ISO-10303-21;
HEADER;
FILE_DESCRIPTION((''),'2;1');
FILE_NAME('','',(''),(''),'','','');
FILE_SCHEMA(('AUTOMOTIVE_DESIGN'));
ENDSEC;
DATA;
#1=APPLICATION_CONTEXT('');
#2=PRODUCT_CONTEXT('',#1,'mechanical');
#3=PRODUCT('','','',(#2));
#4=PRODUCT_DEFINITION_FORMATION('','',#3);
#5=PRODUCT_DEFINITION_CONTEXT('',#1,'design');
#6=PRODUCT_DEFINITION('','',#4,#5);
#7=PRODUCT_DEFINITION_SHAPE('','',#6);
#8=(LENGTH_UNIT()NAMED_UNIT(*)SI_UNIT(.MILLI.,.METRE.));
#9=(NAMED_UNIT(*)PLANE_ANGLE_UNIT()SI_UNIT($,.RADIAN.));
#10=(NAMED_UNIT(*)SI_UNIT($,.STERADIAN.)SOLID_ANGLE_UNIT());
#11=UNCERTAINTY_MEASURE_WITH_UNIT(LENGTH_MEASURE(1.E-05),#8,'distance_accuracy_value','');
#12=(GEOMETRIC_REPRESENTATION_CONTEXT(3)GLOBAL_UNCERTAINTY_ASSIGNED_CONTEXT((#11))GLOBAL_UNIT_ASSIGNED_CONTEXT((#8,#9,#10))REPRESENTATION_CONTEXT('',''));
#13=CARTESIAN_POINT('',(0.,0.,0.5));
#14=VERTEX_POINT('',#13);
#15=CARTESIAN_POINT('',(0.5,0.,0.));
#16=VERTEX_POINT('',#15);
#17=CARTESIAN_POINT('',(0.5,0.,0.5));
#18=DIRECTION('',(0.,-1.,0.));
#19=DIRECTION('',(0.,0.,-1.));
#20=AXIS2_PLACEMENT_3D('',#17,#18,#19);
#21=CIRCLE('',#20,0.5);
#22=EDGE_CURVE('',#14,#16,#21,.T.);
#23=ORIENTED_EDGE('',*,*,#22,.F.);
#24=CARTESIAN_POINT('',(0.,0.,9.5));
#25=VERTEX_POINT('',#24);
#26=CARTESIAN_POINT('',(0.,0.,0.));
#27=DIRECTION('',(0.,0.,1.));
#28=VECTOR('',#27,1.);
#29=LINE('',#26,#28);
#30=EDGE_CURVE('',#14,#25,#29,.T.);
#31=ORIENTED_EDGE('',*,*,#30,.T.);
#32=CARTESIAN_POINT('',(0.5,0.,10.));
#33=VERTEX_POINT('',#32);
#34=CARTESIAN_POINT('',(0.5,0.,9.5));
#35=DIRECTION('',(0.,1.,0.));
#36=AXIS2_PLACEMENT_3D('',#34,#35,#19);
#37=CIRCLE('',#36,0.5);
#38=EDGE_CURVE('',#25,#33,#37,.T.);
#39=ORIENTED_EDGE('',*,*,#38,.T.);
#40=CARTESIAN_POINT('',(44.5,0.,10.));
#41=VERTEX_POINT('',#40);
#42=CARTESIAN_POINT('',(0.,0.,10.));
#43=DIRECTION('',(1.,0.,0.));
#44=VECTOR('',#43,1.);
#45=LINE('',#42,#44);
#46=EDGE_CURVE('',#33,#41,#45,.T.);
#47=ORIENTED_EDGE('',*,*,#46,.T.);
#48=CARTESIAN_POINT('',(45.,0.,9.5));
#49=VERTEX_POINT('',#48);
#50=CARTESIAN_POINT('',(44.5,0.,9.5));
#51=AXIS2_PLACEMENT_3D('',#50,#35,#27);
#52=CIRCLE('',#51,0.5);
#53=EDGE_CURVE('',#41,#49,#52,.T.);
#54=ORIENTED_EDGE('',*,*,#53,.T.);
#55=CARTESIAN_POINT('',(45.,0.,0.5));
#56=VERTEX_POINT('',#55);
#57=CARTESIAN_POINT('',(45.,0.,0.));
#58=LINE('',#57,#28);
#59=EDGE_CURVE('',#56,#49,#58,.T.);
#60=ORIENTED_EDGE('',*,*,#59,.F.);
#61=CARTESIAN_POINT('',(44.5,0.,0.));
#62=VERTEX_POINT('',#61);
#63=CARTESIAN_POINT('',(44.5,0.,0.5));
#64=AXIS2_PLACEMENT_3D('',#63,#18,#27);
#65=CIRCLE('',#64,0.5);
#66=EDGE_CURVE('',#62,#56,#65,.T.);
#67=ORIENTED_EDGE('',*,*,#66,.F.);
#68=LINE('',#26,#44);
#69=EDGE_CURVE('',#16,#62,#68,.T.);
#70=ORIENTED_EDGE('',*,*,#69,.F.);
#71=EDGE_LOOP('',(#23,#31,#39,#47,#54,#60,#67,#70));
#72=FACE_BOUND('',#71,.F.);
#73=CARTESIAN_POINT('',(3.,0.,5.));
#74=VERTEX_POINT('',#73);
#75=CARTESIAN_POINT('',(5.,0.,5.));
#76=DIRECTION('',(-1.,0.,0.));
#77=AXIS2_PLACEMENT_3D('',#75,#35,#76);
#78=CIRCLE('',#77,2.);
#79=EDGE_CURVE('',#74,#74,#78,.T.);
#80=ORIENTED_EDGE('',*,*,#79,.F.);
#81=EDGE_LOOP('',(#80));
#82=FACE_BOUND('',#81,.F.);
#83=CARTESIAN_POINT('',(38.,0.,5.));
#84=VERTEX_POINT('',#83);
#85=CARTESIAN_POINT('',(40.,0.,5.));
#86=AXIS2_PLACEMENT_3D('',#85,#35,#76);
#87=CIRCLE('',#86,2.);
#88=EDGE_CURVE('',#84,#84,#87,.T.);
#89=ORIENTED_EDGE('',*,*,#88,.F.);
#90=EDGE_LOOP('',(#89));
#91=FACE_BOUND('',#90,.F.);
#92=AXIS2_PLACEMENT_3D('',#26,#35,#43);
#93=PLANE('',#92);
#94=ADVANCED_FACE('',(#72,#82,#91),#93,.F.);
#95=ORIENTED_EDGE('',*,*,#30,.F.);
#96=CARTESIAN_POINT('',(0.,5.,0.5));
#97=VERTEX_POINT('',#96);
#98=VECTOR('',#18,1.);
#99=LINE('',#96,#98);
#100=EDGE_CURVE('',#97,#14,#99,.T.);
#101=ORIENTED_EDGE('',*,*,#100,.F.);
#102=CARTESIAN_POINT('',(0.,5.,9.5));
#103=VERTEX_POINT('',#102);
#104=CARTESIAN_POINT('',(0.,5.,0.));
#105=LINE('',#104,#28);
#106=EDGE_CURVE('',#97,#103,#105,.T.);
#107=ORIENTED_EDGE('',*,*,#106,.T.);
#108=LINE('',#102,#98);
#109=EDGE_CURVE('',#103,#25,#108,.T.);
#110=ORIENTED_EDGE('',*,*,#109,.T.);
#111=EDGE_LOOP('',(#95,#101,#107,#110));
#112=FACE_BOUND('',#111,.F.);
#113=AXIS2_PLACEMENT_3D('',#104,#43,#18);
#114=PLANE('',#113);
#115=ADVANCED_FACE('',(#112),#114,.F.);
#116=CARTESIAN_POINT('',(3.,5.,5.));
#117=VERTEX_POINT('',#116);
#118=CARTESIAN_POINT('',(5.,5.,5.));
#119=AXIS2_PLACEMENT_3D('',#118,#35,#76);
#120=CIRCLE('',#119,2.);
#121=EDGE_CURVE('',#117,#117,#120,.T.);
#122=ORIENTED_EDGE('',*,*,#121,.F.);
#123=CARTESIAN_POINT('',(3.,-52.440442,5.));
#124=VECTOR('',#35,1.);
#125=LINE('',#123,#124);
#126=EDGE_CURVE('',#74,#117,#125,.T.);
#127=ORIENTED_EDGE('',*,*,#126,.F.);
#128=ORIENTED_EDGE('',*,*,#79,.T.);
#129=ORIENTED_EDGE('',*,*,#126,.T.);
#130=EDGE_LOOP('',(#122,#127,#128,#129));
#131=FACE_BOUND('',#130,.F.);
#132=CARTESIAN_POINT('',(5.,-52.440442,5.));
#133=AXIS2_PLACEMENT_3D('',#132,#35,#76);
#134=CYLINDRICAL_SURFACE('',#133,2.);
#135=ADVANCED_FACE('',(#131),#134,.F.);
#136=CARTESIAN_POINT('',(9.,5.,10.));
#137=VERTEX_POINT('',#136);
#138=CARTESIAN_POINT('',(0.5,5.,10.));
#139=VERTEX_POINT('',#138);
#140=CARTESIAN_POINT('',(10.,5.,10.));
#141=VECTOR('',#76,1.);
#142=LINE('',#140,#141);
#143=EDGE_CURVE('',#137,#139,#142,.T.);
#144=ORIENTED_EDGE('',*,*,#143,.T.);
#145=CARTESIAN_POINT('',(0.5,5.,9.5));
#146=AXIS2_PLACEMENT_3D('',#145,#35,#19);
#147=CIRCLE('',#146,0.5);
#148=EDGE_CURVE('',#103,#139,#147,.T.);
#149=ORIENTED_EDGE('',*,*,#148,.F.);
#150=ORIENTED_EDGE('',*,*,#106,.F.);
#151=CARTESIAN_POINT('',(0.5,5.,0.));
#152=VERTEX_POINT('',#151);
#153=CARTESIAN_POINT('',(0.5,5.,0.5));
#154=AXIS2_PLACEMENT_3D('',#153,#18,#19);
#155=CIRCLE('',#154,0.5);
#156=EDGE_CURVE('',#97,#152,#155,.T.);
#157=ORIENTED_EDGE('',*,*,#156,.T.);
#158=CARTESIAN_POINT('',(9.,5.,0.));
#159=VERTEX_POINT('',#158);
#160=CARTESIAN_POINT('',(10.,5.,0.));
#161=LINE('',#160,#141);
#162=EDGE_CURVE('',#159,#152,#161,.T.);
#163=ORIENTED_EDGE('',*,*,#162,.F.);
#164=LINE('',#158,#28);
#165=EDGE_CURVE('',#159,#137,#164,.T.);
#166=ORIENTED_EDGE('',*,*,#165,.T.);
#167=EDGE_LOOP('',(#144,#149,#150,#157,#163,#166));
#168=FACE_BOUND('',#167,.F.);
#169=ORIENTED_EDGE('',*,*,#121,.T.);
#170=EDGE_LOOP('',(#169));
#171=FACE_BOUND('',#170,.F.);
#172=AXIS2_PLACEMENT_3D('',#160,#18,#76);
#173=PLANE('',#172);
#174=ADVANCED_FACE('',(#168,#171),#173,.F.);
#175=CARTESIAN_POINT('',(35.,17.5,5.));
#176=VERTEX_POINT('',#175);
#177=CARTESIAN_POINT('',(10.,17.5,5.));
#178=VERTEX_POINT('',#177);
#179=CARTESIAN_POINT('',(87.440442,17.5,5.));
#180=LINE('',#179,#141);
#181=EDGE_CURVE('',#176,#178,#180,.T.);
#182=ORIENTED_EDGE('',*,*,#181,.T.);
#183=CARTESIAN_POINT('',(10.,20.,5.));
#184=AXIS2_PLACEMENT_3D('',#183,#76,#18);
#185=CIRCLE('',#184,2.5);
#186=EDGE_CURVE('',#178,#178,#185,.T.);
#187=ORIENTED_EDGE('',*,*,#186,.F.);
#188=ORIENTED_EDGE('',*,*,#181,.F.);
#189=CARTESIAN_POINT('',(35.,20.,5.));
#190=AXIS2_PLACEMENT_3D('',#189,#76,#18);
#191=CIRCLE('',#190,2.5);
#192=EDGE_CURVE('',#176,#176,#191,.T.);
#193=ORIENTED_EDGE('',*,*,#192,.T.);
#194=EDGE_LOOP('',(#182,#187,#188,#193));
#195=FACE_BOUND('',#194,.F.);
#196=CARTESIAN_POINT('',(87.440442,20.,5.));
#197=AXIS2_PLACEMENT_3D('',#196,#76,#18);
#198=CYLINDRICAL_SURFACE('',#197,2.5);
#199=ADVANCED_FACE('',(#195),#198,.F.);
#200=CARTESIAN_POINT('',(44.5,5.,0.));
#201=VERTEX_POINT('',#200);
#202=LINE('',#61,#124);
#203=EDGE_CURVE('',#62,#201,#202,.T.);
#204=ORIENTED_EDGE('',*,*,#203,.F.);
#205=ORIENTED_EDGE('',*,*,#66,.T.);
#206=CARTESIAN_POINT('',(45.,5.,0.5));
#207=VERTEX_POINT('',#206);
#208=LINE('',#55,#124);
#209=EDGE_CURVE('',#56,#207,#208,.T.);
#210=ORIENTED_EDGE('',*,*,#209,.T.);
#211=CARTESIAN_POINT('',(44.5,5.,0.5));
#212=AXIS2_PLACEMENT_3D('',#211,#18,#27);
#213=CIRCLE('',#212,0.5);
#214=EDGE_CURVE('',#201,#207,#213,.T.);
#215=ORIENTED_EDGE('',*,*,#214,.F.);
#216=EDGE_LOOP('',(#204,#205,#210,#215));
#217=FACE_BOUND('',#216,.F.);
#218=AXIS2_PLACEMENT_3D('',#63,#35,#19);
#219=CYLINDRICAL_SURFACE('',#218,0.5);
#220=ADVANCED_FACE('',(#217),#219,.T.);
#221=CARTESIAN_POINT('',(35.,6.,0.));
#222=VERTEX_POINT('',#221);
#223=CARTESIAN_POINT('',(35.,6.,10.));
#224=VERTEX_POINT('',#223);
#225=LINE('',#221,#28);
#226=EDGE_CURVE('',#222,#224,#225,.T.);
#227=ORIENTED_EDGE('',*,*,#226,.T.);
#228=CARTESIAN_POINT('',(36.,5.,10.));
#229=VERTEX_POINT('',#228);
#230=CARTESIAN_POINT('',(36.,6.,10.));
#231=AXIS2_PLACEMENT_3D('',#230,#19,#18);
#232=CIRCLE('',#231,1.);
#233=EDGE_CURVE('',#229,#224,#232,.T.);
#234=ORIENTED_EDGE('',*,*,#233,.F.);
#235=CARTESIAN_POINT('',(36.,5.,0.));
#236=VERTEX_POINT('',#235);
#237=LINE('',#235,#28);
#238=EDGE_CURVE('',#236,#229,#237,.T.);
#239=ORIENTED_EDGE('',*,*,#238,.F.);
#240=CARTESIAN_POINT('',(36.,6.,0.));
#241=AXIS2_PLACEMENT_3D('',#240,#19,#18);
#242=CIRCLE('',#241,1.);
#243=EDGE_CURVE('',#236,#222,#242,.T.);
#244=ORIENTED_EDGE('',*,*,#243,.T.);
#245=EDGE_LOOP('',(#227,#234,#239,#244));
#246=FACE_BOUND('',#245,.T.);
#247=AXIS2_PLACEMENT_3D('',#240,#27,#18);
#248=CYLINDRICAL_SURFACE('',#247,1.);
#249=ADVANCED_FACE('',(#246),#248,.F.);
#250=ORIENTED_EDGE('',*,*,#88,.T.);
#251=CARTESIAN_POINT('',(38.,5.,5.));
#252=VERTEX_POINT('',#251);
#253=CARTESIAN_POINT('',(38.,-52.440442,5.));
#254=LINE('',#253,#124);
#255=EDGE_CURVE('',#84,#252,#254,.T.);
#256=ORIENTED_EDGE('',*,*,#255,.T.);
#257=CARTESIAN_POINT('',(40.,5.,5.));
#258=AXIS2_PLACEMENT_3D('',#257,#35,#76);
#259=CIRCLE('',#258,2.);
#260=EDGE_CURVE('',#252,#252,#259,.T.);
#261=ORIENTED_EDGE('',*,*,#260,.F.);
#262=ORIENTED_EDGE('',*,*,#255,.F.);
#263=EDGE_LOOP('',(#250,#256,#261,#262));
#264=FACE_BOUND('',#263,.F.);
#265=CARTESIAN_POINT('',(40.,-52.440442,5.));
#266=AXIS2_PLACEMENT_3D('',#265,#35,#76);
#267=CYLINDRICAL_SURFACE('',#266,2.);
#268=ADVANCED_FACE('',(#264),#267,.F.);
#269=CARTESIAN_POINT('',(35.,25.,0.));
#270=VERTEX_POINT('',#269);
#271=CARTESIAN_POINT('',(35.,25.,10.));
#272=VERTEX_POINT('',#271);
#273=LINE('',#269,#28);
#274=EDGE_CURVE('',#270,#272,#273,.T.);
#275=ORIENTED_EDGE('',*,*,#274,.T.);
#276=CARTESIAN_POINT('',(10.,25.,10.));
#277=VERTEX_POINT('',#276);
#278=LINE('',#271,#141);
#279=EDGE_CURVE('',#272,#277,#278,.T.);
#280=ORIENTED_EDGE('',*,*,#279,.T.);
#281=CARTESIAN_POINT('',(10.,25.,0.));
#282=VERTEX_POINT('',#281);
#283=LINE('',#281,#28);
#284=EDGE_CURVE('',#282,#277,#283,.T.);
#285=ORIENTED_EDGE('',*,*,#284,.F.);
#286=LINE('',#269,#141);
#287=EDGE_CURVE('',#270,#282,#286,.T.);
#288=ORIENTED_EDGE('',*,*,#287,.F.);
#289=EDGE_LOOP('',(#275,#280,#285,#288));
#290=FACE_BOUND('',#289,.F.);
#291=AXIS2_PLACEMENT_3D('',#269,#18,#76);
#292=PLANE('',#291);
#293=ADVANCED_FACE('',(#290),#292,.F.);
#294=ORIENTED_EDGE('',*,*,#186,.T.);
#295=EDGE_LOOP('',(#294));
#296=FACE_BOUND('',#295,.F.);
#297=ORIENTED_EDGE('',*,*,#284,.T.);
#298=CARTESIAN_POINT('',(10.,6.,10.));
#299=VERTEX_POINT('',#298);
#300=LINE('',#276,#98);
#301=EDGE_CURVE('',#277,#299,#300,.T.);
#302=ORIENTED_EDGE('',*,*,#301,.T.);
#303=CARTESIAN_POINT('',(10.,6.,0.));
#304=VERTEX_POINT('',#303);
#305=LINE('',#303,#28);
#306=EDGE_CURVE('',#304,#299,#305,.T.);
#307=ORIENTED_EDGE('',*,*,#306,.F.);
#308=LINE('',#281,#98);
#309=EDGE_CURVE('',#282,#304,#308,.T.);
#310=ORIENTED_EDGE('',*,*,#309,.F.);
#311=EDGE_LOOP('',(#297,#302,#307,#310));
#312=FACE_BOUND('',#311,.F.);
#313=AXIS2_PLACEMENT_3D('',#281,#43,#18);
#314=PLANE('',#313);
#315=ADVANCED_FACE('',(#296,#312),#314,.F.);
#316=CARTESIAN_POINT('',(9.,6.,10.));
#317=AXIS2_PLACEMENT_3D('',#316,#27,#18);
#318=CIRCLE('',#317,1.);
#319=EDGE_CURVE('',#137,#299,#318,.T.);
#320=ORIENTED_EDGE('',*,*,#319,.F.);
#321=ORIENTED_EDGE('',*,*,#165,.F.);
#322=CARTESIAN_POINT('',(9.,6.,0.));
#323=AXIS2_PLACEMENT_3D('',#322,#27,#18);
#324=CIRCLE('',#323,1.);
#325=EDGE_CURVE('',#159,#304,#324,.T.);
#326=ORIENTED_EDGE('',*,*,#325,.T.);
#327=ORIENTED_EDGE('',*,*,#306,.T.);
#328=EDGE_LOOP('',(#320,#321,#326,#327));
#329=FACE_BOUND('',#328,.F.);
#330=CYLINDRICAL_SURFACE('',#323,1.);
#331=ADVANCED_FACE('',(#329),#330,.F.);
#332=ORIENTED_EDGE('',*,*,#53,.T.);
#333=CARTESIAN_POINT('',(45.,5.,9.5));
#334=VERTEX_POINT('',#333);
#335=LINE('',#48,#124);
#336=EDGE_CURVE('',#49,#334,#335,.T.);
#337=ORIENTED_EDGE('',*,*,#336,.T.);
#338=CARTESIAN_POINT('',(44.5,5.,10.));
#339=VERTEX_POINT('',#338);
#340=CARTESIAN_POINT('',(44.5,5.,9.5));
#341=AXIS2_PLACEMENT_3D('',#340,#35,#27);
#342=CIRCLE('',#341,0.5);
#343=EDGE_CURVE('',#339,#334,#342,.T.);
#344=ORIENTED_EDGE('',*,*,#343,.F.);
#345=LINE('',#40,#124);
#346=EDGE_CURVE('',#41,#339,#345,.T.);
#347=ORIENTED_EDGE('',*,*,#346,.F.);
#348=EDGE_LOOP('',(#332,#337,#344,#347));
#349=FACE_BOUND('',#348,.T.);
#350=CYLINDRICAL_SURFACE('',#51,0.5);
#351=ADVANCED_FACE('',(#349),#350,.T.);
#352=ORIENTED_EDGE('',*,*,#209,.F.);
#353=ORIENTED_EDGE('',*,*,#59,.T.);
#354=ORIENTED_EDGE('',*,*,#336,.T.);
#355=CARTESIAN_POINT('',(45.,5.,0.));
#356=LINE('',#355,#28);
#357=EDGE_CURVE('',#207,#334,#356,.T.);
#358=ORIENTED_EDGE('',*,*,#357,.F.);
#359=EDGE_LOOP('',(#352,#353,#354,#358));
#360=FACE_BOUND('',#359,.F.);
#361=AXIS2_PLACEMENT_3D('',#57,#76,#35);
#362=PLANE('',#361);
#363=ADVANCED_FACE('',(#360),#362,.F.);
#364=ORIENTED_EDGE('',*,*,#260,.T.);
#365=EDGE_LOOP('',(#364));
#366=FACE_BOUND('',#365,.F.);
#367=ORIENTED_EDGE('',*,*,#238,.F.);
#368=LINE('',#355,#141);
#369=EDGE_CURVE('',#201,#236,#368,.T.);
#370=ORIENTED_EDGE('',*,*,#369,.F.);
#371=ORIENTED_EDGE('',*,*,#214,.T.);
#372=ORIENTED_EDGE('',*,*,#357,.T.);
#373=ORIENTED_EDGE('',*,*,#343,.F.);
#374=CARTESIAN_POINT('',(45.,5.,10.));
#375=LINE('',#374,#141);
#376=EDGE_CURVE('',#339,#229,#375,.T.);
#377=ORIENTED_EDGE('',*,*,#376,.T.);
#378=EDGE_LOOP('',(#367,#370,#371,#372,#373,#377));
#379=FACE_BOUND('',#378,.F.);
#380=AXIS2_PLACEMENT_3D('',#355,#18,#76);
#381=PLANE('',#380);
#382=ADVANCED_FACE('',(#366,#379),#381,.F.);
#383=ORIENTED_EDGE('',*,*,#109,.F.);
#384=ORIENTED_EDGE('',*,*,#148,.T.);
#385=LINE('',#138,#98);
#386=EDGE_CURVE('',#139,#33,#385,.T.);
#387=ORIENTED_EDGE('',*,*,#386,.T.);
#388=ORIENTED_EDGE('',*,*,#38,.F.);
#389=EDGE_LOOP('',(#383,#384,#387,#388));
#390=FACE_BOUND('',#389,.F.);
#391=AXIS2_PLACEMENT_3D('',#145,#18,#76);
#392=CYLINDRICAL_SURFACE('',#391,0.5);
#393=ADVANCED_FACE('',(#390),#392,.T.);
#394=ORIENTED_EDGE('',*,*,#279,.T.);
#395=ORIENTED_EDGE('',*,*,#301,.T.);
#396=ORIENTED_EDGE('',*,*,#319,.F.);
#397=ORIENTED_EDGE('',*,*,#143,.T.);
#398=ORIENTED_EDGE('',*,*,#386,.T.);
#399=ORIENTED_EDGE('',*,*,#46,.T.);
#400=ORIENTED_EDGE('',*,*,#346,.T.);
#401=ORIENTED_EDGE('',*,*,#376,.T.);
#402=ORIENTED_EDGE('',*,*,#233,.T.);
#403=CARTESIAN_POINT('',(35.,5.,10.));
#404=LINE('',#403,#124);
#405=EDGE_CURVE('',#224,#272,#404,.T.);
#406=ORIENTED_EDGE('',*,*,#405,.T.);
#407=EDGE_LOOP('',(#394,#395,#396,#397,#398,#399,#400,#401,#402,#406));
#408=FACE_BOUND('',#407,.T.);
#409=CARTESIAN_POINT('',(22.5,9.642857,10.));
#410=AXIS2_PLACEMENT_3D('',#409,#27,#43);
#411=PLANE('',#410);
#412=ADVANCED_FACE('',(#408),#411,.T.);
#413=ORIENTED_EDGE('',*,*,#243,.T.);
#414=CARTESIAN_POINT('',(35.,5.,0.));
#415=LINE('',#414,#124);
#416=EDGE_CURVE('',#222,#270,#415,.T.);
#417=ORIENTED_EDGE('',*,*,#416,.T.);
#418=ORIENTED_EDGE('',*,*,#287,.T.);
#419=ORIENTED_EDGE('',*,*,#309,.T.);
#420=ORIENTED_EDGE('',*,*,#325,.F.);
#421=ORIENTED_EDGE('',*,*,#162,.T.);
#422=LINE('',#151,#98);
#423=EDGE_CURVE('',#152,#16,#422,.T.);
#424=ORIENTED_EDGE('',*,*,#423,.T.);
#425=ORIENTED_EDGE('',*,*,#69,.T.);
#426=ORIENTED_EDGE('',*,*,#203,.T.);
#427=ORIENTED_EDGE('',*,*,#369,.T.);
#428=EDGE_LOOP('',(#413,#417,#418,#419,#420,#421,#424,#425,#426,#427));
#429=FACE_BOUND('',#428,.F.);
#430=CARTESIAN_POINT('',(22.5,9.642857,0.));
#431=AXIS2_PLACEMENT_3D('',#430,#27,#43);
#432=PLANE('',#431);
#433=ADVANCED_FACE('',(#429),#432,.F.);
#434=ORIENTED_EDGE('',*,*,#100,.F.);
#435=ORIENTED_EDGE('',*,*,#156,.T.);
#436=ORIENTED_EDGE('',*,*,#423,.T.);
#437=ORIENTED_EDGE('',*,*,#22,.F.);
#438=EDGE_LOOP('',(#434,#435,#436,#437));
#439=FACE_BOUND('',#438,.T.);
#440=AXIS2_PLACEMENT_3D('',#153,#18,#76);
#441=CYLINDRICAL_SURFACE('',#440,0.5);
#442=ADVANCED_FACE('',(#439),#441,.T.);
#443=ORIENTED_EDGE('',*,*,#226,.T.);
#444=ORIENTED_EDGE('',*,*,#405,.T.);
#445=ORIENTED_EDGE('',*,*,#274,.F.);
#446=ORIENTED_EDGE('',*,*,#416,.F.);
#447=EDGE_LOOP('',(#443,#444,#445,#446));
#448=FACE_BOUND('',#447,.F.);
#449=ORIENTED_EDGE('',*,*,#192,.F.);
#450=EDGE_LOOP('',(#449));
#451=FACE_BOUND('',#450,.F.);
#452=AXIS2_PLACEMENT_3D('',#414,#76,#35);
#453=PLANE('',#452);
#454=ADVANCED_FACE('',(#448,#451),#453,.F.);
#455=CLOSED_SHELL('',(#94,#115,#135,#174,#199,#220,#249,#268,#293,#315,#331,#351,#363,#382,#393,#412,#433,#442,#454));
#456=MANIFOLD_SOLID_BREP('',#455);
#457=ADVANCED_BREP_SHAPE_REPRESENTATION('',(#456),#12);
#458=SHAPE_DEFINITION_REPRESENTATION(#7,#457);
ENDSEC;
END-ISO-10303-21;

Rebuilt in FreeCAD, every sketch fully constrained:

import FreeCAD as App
import Part
import Sketcher
from FreeCAD import Vector


def edges_at(feature, points):
    """Names of the edges that pass closest to the given points."""
    edges = feature.Shape.Edges
    near = lambda p: min(range(len(edges)), key=lambda i: edges[i].distToShape(Part.Vertex(*p))[0])
    return sorted({f"Edge{near(p) + 1}" for p in points})


def add_polygon(sketch, points):
    """Adds a closed chain of lines whose ends are joined by coincident constraints."""
    first, n = sketch.GeometryCount, len(points)
    for a, b in zip(points, points[1:] + points[:1]):
        sketch.addGeometry(Part.LineSegment(App.Vector(*a, 0), App.Vector(*b, 0)), False)
    for i in range(n):
        sketch.addConstraint(Sketcher.Constraint("Coincident", first + i, 2, first + (i + 1) % n, 1))

doc = App.newDocument("Part")
params = doc.addObject("Spreadsheet::Sheet", "Params")
for row, (alias, value) in enumerate([
    ("sketch1_width", "45 mm"),
    ("sketch1_width2", "10 mm"),
    ("sketch1_height", "5 mm"),
    ("sketch1_height2", "20 mm"),
    ("pad1_length", "10 mm"),
    ("sketch2_diameter", "5 mm"),
    ("hole_diameter", "5 mm"),
    ("sketch3_diameter", "4 mm"),
    ("hole2_diameter", "4 mm"),
    ("fillet_radius", "0.5 mm"),
    ("fillet2_radius", "1 mm"),
], start=1):
    params.set(f"A{row}", alias)
    params.set(f"B{row}", "=" + value)
    params.setAlias(f"B{row}", alias)

body = doc.addObject("PartDesign::Body", "Body")

sketch1 = body.newObject("Sketcher::SketchObject", "Sketch")
sketch1.AttachmentSupport = (doc.getObject("XY_Plane"), [""])
sketch1.MapMode = "FlatFace"
add_polygon(sketch1, [(0, 5), (0, 0), (45, 0), (45, 5), (35, 5), (35, 25), (10, 25), (10, 5)])
sketch1.addConstraint([
    Sketcher.Constraint("Vertical", 0),
    Sketcher.Constraint("Horizontal", 1),
    Sketcher.Constraint("Vertical", 2),
    Sketcher.Constraint("Horizontal", 3),
    Sketcher.Constraint("Vertical", 4),
    Sketcher.Constraint("Horizontal", 5),
    Sketcher.Constraint("Vertical", 6),
    Sketcher.Constraint("Horizontal", 7),
    Sketcher.Constraint("Coincident", 0, 2, -1, 1),
    Sketcher.Constraint("Horizontal", 3, 2, 6, 2),
    Sketcher.Constraint("Equal", 3, 7),
    Sketcher.Constraint("DistanceX", 1, 1, 1, 2, 45.0),
    Sketcher.Constraint("DistanceX", 3, 2, 3, 1, 10.0),
    Sketcher.Constraint("DistanceY", 0, 2, 0, 1, 5.0),
    Sketcher.Constraint("DistanceY", 4, 1, 4, 2, 20.0),
])
sketch1.setExpression("Constraints[19]", "Params.sketch1_width")
sketch1.setExpression("Constraints[20]", "Params.sketch1_width2")
sketch1.setExpression("Constraints[21]", "Params.sketch1_height")
sketch1.setExpression("Constraints[22]", "Params.sketch1_height2")
pad1 = body.newObject("PartDesign::Pad", "Pad")
pad1.Profile = sketch1
pad1.setExpression("Length", "Params.pad1_length")

sketch2 = body.newObject("Sketcher::SketchObject", "Sketch001")
sketch2.AttachmentSupport = (doc.getObject("YZ_Plane"), [""])
sketch2.MapMode = "FlatFace"
sketch2.AttachmentOffset = App.Placement(Vector(0, 0, 35), App.Rotation())
sketch2.addGeometry(Part.Circle(Vector(20, 5, 0), Vector(0, 0, 1), 2.5), False)
sketch2.addConstraint([
    Sketcher.Constraint("Diameter", 0, 5.0),
    Sketcher.Constraint("DistanceX", -1, 1, 0, 3, 20.0),
    Sketcher.Constraint("DistanceY", -1, 1, 0, 3, 5.0),
])
sketch2.setExpression("Constraints[0]", "Params.sketch2_diameter")
doc.recompute()
hole = body.newObject("PartDesign::Hole", "Hole")
hole.Profile = sketch2
hole.ThreadType = "None"
hole.setExpression("Diameter", "Params.hole_diameter")
hole.DepthType = "ThroughAll"

sketch3 = body.newObject("Sketcher::SketchObject", "Sketch002")
sketch3.AttachmentSupport = (doc.getObject("XZ_Plane"), [""])
sketch3.MapMode = "FlatFace"
sketch3.addGeometry([
    Part.Circle(Vector(5, 5, 0), Vector(0, 0, 1), 2),
    Part.Circle(Vector(40, 5, 0), Vector(0, 0, 1), 2),
], False)
sketch3.addConstraint([
    Sketcher.Constraint("Equal", 0, 1),
    Sketcher.Constraint("Horizontal", 0, 3, 1, 3),
    Sketcher.Constraint("Diameter", 0, 4.0),
    Sketcher.Constraint("DistanceX", -1, 1, 0, 3, 5.0),
    Sketcher.Constraint("DistanceY", -1, 1, 0, 3, 5.0),
    Sketcher.Constraint("DistanceX", -1, 1, 1, 3, 40.0),
])
sketch3.setExpression("Constraints[2]", "Params.sketch3_diameter")
doc.recompute()
hole2 = body.newObject("PartDesign::Hole", "Hole001")
hole2.Profile = sketch3
hole2.ThreadType = "None"
hole2.setExpression("Diameter", "Params.hole2_diameter")
hole2.DepthType = "ThroughAll"
doc.recompute()

fillet = body.newObject("PartDesign::Fillet", "Fillet")
fillet.Base = (hole2, edges_at(hole2, [
    (0, 2.5, 10),
    (0, 2.5, 0),
    (45, 2.5, 10),
    (45, 2.5, 0),
]))
fillet.setExpression("Radius", "Params.fillet_radius")
doc.recompute()

fillet2 = body.newObject("PartDesign::Fillet", "Fillet001")
fillet2.Base = (fillet, edges_at(fillet, [(10, 5, 5), (35, 5, 5)]))
fillet2.setExpression("Radius", "Params.fillet2_radius")

doc.recompute()
